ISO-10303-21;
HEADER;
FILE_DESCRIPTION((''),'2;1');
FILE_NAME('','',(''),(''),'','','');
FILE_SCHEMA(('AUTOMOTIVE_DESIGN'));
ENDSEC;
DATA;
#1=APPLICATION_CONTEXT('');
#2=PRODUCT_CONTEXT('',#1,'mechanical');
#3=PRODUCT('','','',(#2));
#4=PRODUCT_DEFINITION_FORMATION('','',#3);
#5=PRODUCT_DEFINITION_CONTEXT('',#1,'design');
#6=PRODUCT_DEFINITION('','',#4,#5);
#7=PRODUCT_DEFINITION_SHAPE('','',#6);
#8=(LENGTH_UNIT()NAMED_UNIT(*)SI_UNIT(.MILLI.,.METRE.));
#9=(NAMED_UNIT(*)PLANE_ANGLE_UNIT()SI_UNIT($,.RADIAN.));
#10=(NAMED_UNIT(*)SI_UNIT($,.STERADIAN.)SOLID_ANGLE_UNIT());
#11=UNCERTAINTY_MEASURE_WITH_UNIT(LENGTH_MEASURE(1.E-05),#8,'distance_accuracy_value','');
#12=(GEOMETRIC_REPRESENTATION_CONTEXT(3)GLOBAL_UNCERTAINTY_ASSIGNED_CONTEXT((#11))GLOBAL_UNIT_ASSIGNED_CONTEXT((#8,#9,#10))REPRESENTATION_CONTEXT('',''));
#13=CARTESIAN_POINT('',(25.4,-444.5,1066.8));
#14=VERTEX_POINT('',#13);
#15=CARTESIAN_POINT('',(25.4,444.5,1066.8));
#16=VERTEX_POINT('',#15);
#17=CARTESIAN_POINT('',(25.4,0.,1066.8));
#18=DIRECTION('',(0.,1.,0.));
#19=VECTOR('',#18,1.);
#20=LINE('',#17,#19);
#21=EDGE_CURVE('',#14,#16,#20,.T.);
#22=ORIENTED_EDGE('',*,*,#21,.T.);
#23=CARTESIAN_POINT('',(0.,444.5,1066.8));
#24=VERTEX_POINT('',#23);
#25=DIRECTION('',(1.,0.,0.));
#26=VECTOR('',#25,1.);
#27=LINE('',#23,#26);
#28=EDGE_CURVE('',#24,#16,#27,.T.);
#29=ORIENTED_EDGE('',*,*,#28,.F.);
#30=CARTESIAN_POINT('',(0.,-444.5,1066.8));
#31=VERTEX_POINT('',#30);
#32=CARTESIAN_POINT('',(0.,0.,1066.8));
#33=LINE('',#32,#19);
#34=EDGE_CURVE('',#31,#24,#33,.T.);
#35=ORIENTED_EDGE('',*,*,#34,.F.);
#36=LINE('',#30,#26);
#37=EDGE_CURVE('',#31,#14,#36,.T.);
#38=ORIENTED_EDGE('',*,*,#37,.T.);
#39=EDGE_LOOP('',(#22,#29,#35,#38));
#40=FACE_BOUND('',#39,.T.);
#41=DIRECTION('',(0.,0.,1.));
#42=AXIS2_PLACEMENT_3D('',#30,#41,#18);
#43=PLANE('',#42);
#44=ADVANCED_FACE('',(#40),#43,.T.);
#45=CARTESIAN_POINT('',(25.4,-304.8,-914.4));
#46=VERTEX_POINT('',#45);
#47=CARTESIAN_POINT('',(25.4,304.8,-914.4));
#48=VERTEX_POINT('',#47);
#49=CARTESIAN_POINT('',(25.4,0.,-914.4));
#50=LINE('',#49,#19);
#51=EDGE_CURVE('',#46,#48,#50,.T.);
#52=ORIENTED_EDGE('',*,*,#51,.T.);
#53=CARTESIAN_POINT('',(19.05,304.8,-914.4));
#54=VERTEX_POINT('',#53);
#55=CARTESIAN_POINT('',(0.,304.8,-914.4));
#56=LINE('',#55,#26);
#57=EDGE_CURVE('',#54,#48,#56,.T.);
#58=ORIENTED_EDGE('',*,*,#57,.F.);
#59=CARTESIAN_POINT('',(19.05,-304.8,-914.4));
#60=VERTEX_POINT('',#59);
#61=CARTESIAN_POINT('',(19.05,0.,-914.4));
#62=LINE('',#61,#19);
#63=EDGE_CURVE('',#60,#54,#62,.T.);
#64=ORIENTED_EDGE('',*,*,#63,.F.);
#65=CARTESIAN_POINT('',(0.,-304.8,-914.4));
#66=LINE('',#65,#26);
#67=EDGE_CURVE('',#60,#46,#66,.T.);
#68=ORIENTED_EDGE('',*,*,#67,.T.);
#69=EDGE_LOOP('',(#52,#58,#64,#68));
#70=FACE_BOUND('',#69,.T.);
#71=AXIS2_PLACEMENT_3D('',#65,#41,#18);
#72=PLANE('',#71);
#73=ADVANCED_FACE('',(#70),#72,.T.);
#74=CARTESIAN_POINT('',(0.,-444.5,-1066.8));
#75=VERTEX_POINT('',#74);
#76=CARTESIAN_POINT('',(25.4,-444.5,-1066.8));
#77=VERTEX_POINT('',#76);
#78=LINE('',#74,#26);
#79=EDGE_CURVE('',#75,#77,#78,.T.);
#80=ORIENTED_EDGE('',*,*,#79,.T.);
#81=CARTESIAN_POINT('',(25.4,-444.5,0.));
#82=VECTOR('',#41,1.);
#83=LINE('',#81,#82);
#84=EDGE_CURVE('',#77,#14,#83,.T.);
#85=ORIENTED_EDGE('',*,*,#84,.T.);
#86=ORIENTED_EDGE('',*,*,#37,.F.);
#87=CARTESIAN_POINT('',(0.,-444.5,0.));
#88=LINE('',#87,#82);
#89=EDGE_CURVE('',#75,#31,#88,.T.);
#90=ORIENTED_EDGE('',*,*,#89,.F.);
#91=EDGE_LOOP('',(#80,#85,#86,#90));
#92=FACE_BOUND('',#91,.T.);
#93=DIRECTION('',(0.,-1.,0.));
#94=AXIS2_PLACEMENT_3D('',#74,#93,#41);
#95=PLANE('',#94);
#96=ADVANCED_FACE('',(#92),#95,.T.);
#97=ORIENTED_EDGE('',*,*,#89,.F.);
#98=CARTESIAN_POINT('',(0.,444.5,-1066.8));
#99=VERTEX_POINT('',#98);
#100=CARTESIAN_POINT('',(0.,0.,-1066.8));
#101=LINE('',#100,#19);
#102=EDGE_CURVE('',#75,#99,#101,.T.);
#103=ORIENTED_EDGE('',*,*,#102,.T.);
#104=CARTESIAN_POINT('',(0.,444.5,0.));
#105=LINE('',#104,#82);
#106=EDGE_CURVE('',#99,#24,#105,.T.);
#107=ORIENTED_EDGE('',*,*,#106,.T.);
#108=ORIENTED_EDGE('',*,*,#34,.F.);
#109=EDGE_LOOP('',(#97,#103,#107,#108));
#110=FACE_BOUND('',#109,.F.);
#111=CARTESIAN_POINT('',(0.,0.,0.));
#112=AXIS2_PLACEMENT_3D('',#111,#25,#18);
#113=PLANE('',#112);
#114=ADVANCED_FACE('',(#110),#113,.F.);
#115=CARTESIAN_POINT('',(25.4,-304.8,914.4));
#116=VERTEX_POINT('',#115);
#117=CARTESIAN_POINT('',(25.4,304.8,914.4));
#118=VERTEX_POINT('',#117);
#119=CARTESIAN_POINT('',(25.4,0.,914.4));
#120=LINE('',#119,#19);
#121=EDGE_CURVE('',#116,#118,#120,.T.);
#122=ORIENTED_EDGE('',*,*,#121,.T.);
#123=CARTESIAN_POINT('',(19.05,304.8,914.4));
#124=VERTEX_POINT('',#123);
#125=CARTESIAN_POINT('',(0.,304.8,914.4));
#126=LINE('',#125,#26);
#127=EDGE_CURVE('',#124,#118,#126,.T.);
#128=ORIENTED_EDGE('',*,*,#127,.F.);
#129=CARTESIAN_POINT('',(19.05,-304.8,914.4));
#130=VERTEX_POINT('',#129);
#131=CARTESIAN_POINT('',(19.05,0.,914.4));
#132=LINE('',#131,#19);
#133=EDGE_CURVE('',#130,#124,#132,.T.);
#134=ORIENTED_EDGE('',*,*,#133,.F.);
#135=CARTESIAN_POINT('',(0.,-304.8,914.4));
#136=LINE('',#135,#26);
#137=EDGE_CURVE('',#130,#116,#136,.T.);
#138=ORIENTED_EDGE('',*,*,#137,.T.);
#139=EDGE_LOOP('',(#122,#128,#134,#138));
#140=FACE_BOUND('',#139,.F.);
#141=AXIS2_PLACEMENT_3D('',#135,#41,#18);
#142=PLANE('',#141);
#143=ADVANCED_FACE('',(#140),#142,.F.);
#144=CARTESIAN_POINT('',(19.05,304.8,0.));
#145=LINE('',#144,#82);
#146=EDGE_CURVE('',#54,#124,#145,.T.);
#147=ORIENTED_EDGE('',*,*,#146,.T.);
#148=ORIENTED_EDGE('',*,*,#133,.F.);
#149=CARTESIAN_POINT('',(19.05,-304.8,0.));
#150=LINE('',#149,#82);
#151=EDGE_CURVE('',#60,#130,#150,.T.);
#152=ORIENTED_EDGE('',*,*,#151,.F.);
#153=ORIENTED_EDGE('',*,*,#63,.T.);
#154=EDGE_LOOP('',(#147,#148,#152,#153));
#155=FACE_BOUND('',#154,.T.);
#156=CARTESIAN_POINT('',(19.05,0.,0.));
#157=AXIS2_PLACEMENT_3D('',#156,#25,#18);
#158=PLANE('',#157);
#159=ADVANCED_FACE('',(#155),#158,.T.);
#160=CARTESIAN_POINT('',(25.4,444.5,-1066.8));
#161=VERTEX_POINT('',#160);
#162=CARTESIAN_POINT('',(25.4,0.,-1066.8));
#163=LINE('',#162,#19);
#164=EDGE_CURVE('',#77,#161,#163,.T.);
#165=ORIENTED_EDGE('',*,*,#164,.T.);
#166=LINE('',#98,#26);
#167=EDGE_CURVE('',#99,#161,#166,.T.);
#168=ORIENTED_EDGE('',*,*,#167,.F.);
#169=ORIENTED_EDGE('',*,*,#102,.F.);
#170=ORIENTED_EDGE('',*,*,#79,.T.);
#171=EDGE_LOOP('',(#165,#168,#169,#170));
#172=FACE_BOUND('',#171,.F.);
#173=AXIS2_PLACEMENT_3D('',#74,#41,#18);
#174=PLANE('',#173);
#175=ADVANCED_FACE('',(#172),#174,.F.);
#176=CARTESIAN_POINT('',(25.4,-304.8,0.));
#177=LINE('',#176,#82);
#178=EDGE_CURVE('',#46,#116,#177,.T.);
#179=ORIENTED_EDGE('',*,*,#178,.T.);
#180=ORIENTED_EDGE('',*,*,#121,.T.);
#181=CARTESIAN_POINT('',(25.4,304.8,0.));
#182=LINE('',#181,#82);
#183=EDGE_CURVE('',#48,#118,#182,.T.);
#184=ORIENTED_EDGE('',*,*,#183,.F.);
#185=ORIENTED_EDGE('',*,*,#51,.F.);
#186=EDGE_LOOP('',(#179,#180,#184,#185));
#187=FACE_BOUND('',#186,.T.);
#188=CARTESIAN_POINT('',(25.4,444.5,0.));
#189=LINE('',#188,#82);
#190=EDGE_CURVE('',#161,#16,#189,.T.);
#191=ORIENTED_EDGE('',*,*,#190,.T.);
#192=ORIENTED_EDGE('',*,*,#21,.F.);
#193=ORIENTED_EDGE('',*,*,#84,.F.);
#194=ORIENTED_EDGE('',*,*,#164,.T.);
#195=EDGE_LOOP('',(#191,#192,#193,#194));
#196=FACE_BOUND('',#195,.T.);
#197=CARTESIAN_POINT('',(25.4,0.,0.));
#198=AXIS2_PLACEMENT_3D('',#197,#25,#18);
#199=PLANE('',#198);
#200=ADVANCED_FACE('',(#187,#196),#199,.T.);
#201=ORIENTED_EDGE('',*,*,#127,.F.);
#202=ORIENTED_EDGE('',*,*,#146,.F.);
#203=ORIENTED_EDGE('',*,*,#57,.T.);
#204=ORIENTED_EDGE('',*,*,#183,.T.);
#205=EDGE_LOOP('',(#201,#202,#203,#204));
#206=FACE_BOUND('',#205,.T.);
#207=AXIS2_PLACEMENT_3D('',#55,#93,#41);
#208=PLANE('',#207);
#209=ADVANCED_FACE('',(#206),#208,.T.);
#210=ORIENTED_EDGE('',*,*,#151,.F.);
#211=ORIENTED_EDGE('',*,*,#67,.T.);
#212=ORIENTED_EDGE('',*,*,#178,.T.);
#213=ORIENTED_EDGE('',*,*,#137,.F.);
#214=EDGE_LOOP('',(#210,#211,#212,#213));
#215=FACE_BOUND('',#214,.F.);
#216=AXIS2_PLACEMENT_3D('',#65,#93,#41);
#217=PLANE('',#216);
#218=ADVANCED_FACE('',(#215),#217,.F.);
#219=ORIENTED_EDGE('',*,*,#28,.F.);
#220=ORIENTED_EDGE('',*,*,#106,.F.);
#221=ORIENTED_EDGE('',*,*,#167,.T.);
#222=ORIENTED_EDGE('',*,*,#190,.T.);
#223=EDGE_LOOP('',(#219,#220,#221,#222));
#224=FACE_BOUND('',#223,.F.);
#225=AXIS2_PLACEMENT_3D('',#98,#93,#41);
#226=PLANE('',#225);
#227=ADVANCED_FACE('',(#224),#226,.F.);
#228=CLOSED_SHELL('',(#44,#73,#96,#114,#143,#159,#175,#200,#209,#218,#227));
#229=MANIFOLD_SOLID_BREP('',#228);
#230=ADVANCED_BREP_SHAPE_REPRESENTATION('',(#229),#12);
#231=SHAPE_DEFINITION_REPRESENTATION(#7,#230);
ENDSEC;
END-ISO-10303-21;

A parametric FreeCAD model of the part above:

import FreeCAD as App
import Part
import Sketcher
Q = App.Units.Quantity

doc = App.newDocument("Part")
body = doc.addObject("PartDesign::Body", "Body")

# Sketch on YZ plane
sketch1 = body.newObject("Sketcher::SketchObject", "Sketch")
sketch1.AttachmentSupport = (doc.getObject("YZ_Plane"), [""])
sketch1.MapMode = "FlatFace"
sketch1.addGeometry([
    Part.LineSegment(App.Vector(-305, 914, 0), App.Vector(-305, -914, 0)),
    Part.LineSegment(App.Vector(-305, -914, 0), App.Vector(305, -914, 0)),
    Part.LineSegment(App.Vector(305, -914, 0), App.Vector(305, 914, 0)),
    Part.LineSegment(App.Vector(305, 914, 0), App.Vector(-305, 914, 0)),
], False)
sketch1.addConstraint([
    Sketcher.Constraint("Coincident", 0, 2, 1, 1),
    Sketcher.Constraint("Coincident", 1, 2, 2, 1),
    Sketcher.Constraint("Coincident", 2, 2, 3, 1),
    Sketcher.Constraint("Coincident", 3, 2, 0, 1),
    Sketcher.Constraint("Vertical", 0),
    Sketcher.Constraint("Horizontal", 1),
    Sketcher.Constraint("Vertical", 2),
    Sketcher.Constraint("Horizontal", 3),
    Sketcher.Constraint("Symmetric", 0, 2, 2, 2, -1, 1),
    Sketcher.Constraint("DistanceX", 1, 1, 1, 2, Q("24 in")),
    Sketcher.Constraint("DistanceY", 0, 2, 0, 1, Q("72 in")),
])
pad1 = body.newObject("PartDesign::Pad", "Pad")
pad1.Profile = sketch1
pad1.Length = Q("0.75 in")

# Sketch on YZ plane
sketch2 = body.newObject("Sketcher::SketchObject", "Sketch001")
sketch2.AttachmentSupport = (doc.getObject("YZ_Plane"), [""])
sketch2.MapMode = "FlatFace"
sketch2.addGeometry([
    Part.LineSegment(App.Vector(-444, 1067, 0), App.Vector(-444, -1067, 0)),  # 0
    Part.LineSegment(App.Vector(-444, -1067, 0), App.Vector(444, -1067, 0)),  # 1
    Part.LineSegment(App.Vector(444, -1067, 0), App.Vector(444, 1067, 0)),  # 2
    Part.LineSegment(App.Vector(444, 1067, 0), App.Vector(-444, 1067, 0)),  # 3
    Part.LineSegment(App.Vector(305, -914, 0), App.Vector(-305, -914, 0)),  # 4
    Part.LineSegment(App.Vector(-305, -914, 0), App.Vector(-305, 914, 0)),  # 5
    Part.LineSegment(App.Vector(-305, 914, 0), App.Vector(305, 914, 0)),  # 6
    Part.LineSegment(App.Vector(305, 914, 0), App.Vector(305, -914, 0)),  # 7
], False)
sketch2.addConstraint([
    Sketcher.Constraint("Coincident", 0, 2, 1, 1),
    Sketcher.Constraint("Coincident", 1, 2, 2, 1),
    Sketcher.Constraint("Coincident", 2, 2, 3, 1),
    Sketcher.Constraint("Coincident", 3, 2, 0, 1),
    Sketcher.Constraint("Coincident", 4, 2, 5, 1),
    Sketcher.Constraint("Coincident", 5, 2, 6, 1),
    Sketcher.Constraint("Coincident", 6, 2, 7, 1),
    Sketcher.Constraint("Coincident", 7, 2, 4, 1),
    Sketcher.Constraint("Vertical", 0),
    Sketcher.Constraint("Horizontal", 1),
    Sketcher.Constraint("Vertical", 2),
    Sketcher.Constraint("Horizontal", 3),
    Sketcher.Constraint("Horizontal", 4),
    Sketcher.Constraint("Vertical", 5),
    Sketcher.Constraint("Horizontal", 6),
    Sketcher.Constraint("Vertical", 7),
    Sketcher.Constraint("Symmetric", 0, 2, 2, 2, -1, 1),
    Sketcher.Constraint("Symmetric", 4, 2, 6, 2, -1, 1),
    Sketcher.Constraint("DistanceX", 1, 1, 1, 2, Q("35 in")),
    Sketcher.Constraint("DistanceX", 4, 2, 4, 1, Q("24 in")),
    Sketcher.Constraint("DistanceY", 0, 2, 0, 1, Q("84 in")),
    Sketcher.Constraint("DistanceY", 5, 1, 5, 2, Q("72 in")),
])
pad2 = body.newObject("PartDesign::Pad", "Pad001")
pad2.Profile = sketch2
pad2.Length = Q("1 in")

doc.recompute()
